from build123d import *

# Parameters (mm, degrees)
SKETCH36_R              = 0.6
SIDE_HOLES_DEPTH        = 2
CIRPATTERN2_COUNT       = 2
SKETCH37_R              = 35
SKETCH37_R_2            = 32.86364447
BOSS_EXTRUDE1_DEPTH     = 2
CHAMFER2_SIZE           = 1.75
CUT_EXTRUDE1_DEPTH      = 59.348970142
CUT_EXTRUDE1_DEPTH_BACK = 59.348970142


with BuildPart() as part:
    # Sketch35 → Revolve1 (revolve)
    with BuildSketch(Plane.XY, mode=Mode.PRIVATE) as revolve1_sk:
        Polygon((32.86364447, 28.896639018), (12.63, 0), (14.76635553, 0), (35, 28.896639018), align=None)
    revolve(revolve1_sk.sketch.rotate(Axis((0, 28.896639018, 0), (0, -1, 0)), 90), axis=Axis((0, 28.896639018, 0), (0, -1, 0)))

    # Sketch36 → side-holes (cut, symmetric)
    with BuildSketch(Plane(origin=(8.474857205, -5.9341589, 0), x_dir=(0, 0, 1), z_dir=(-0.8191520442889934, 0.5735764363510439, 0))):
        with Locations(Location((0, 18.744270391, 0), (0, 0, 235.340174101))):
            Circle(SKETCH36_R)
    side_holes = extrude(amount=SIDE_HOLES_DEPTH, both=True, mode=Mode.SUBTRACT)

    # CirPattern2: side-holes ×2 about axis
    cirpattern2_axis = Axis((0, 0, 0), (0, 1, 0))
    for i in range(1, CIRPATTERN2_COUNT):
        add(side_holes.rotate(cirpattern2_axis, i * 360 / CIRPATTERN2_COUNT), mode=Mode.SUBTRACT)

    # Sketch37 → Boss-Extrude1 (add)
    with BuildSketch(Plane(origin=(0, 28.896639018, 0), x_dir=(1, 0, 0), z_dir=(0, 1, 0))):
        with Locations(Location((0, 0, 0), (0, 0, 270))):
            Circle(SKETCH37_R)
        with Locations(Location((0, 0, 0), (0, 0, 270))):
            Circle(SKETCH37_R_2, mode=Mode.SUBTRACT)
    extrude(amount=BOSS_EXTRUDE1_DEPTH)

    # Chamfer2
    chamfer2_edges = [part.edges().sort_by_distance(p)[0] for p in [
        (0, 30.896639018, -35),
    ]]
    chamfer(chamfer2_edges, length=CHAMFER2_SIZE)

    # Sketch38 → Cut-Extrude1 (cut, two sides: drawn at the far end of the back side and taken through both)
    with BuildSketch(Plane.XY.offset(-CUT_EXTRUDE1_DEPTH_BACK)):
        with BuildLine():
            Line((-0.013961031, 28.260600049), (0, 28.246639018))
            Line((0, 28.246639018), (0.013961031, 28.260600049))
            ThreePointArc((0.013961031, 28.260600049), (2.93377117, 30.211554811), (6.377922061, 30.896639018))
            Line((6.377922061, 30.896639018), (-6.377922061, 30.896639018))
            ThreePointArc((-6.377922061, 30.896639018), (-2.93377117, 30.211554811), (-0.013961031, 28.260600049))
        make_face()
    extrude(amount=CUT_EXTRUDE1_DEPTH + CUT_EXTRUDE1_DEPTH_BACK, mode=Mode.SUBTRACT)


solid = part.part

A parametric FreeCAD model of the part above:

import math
import FreeCAD as App
import Part
import Sketcher
from FreeCAD import Vector
Q = App.Units.Quantity


def edges_at(feature, points):
    """Names of the edges that pass closest to the given points."""
    edges = feature.Shape.Edges
    near = lambda p: min(range(len(edges)), key=lambda i: edges[i].distToShape(Part.Vertex(*p))[0])
    return sorted({f"Edge{near(p) + 1}" for p in points})


def add_polygon(sketch, points):
    """Adds a closed chain of lines whose ends are joined by coincident constraints."""
    first, n = sketch.GeometryCount, len(points)
    for a, b in zip(points, points[1:] + points[:1]):
        sketch.addGeometry(Part.LineSegment(App.Vector(*a, 0), App.Vector(*b, 0)), False)
    for i in range(n):
        sketch.addConstraint(Sketcher.Constraint("Coincident", first + i, 2, first + (i + 1) % n, 1))

doc = App.newDocument("Part")
body = doc.addObject("PartDesign::Body", "Body")

# Sketch on XY plane
sketch1 = doc.addObject("Sketcher::SketchObject", "Sketch")
body.addObject(sketch1)
sketch1.AttachmentSupport = (doc.XY_Plane, [""])
sketch1.MapMode = "FlatFace"
add_polygon(sketch1, [(32.9, 28.9), (12.6, 0), (14.8, 0), (35, 28.9)])  # lines 0-3
sketch1.addConstraint([
    Sketcher.Constraint("Horizontal", 1),
    Sketcher.Constraint("Horizontal", 3),
    Sketcher.Constraint("PointOnObject", 0, 2, -1),
    Sketcher.Constraint("Parallel", 0, 2),
    Sketcher.Constraint("Angle", 0, Q("-125 deg")),
    Sketcher.Constraint("DistanceX", -1, 1, 2, 2, 35.0),
    Sketcher.Constraint("DistanceX", -1, 1, 0, 2, 12.63),
    Sketcher.Constraint("DistanceX", 1, 1, 1, 2, 2.136356),
])
revolution = doc.addObject("PartDesign::Revolution", "Revolution")
body.addObject(revolution)
revolution.Profile = sketch1
revolution.ReferenceAxis = (sketch1, ["V_Axis"])
revolution.Angle = 360

# Sketch on an angled plane
sketch2 = doc.addObject("Sketcher::SketchObject", "Sketch001")
body.addObject(sketch2)
sketch2.Placement = App.Placement(Vector(8.474857, -5.934159, 0), App.Rotation(Vector(0, 0, 1), Vector(0.573576436, 0.819152044, 0), Vector(-0.819152044, 0.573576436, 0), "ZXY"))
sketch2.addGeometry(Part.Circle(Vector(0, 18.7, 0), Vector(0, 0, 1), 0.6), False)
sketch2.addConstraint([
    Sketcher.Constraint("PointOnObject", 0, 3, -2),
    Sketcher.Constraint("Diameter", 0, 1.2),
    Sketcher.Constraint("DistanceY", -1, 1, 0, 3, 18.74427),
])
pocket1 = doc.addObject("PartDesign::Pocket", "Pocket")
body.addObject(pocket1)
pocket1.Profile = sketch2
pocket1.Length = 4
pocket1.Midplane = True
doc.recompute()

polarpattern = doc.addObject("PartDesign::PolarPattern", "PolarPattern")
body.addObject(polarpattern)
polarpattern.Originals = [pocket1]
polarpattern.Axis = (doc.Y_Axis, [""])
polarpattern.Angle = 360
polarpattern.Occurrences = 2
body.Tip = polarpattern

# Sketch on XZ plane
sketch3 = doc.addObject("Sketcher::SketchObject", "Sketch002")
body.addObject(sketch3)
sketch3.AttachmentSupport = (doc.XZ_Plane, [""])
sketch3.MapMode = "FlatFace"
sketch3.AttachmentOffset = App.Placement(Vector(0, 0, -28.896639), App.Rotation())
sketch3.addGeometry([
    Part.Circle(Vector(0, 0, 0), Vector(0, 0, 1), 35),
    Part.Circle(Vector(0, 0, 0), Vector(0, 0, 1), 33),
], False)
sketch3.addConstraint([
    Sketcher.Constraint("Coincident", 0, 3, -1, 1),
    Sketcher.Constraint("Coincident", 1, 3, -1, 1),
    Sketcher.Constraint("Diameter", 0, 70.0),
    Sketcher.Constraint("Diameter", 1, 65.727289),
])
pad1 = doc.addObject("PartDesign::Pad", "Pad")
body.addObject(pad1)
pad1.Profile = sketch3
pad1.Length = 2
pad1.Reversed = True
doc.recompute()

chamfer = doc.addObject("PartDesign::Chamfer", "Chamfer")
body.addObject(chamfer)
chamfer.Base = (pad1, edges_at(pad1, [(0, 30.897, -35)]))
chamfer.Size = 1.75

# Sketch on XY plane
sketch4 = doc.addObject("Sketcher::SketchObject", "Sketch003")
body.addObject(sketch4)
sketch4.AttachmentSupport = (doc.XY_Plane, [""])
sketch4.MapMode = "FlatFace"
sketch4.addGeometry([
    Part.LineSegment(Vector(-0.014, 28.261, 0), Vector(0, 28.247, 0)),  # 0
    Part.LineSegment(Vector(0, 28.247, 0), Vector(0.014, 28.261, 0)),  # 1
    Part.ArcOfCircle(Part.Circle(Vector(6.378, 21.897, 0), Vector(0, 0, 1), 9), math.radians(90), math.radians(135)),  # 2
    Part.LineSegment(Vector(6.378, 30.897, 0), Vector(-6.378, 30.897, 0)),  # 3
    Part.ArcOfCircle(Part.Circle(Vector(-6.378, 21.897, 0), Vector(0, 0, 1), 9), math.radians(45), math.radians(90)),  # 4
], False)
sketch4.addConstraint([
    Sketcher.Constraint("Coincident", 0, 2, 1, 1),
    Sketcher.Constraint("Tangent", 1, 2, 2, 2),
    Sketcher.Constraint("Tangent", 2, 1, 3, 1),
    Sketcher.Constraint("Tangent", 3, 2, 4, 2),
    Sketcher.Constraint("Tangent", 4, 1, 0, 1),
    Sketcher.Constraint("Horizontal", 3),
    Sketcher.Constraint("Equal", 2, 4),
    Sketcher.Constraint("Symmetric", 1, 2, 4, 1, -2),
    Sketcher.Constraint("Radius", 2, 9.0),
    Sketcher.Constraint("DistanceY", 2, 3, 0, 2, 6.35),
    Sketcher.Constraint("DistanceY", -1, 1, 1, 2, 28.2606),
    Sketcher.Constraint("DistanceX", 3, 2, 3, 1, 12.755844),
])
pocket2 = doc.addObject("PartDesign::Pocket", "Pocket001")
body.addObject(pocket2)
pocket2.Profile = sketch4
pocket2.Type = "ThroughAll"
pocket2.Midplane = True

doc.recompute()
